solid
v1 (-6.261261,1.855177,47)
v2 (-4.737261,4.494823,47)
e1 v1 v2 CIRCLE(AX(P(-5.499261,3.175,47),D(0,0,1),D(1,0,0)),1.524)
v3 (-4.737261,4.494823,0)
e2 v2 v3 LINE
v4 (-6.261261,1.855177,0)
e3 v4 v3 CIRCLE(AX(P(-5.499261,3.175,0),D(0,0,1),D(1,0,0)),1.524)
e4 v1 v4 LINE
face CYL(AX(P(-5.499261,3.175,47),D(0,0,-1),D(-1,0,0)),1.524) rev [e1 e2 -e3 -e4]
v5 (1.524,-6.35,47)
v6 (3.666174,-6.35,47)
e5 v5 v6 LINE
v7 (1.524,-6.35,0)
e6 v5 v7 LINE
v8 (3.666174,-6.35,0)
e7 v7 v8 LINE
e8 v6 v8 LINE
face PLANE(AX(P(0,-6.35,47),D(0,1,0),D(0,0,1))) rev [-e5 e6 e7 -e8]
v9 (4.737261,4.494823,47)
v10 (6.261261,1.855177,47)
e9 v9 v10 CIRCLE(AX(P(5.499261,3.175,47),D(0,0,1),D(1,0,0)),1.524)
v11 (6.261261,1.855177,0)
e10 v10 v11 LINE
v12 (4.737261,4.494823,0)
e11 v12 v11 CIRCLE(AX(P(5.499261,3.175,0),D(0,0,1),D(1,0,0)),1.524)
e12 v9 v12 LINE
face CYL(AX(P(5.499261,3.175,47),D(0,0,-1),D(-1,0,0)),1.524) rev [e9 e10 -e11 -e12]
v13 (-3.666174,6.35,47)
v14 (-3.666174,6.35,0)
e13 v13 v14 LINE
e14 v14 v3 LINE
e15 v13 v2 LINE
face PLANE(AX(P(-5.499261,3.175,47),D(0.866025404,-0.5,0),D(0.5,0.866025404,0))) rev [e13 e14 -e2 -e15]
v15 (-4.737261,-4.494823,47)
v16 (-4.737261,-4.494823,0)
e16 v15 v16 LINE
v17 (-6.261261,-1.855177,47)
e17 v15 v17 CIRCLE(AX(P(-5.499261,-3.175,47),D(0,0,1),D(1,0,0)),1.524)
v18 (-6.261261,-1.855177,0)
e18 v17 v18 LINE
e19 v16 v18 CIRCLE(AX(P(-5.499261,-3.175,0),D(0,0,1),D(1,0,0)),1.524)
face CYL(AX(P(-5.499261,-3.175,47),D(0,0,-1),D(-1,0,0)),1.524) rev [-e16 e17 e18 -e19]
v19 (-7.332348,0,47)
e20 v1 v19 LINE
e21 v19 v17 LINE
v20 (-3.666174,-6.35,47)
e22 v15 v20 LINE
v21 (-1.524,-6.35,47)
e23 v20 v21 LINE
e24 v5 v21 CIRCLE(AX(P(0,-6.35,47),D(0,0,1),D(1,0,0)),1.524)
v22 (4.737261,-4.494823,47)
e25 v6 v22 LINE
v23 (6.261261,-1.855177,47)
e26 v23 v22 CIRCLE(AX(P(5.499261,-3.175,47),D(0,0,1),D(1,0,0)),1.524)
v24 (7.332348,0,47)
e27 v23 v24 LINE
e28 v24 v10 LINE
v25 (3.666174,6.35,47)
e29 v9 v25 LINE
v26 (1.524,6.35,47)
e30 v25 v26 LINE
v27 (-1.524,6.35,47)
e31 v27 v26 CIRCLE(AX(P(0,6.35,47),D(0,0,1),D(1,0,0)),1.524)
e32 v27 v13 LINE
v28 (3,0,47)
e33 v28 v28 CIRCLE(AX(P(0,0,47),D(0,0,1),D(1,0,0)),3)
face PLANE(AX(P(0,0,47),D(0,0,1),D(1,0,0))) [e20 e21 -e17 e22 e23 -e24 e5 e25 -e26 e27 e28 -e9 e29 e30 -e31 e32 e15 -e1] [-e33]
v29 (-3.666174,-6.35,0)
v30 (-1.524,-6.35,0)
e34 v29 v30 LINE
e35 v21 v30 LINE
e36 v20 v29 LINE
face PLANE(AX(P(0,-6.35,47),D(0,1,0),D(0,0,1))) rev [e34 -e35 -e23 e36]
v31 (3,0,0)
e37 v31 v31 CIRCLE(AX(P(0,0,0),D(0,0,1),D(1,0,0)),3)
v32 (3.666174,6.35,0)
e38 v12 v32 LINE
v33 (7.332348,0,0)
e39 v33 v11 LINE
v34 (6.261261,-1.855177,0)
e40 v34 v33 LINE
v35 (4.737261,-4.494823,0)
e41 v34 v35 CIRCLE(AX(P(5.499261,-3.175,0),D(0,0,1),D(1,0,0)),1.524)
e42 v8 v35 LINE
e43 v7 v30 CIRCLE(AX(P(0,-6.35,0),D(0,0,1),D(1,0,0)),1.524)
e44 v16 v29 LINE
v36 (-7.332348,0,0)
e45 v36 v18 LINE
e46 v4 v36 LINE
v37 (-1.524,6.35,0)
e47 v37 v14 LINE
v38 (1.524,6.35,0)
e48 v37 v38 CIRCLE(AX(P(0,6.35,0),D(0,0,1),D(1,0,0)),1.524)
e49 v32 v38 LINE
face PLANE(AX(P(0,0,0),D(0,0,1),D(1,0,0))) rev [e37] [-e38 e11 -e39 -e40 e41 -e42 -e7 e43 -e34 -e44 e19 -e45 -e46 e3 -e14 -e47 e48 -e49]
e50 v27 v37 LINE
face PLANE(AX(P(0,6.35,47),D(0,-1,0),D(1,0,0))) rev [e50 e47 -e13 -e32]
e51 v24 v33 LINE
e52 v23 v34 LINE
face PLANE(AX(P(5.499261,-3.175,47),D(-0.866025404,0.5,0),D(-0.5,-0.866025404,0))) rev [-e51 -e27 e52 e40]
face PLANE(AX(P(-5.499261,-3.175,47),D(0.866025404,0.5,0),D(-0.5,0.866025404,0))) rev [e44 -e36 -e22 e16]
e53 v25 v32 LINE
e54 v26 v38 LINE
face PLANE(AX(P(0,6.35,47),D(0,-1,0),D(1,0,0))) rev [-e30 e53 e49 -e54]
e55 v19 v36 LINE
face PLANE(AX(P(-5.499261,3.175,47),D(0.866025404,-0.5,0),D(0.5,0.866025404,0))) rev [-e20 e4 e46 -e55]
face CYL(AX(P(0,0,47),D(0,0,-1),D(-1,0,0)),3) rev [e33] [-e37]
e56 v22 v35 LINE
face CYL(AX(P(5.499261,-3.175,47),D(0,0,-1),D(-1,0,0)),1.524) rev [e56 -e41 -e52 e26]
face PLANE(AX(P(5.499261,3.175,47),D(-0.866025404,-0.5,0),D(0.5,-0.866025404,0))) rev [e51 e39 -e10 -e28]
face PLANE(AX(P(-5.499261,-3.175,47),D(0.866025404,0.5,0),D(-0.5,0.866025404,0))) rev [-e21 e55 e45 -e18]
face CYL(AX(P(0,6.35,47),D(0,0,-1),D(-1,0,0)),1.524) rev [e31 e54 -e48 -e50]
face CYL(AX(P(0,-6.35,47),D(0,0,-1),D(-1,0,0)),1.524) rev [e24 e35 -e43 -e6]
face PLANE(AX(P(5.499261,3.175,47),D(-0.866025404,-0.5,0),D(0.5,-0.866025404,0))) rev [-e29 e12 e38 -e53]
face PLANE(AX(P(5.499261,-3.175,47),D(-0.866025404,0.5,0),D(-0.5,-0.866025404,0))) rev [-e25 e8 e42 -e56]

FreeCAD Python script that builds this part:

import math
import FreeCAD as App
import Part
import Sketcher
Q = App.Units.Quantity

doc = App.newDocument("Part")
body = doc.addObject("PartDesign::Body", "Body")

sketch1 = body.newObject("Sketcher::SketchObject", "Sketch")
sketch1.AttachmentSupport = (doc.getObject("XY_Plane"), [""])
sketch1.MapMode = "FlatFace"
sketch1.addGeometry(Part.LineSegment(App.Vector(4.7, 4.5, 0), App.Vector(3.7, 6.3, 0)), False)
sketch1.addGeometry(Part.LineSegment(App.Vector(3.7, 6.3, 0), App.Vector(1.5, 6.3, 0)), False)
sketch1.addGeometry(Part.ArcOfCircle(Part.Circle(App.Vector(0, 6.3, 0), App.Vector(0, 0, 1), 1.5), math.radians(180), math.radians(360)), False)
sketch1.addGeometry(Part.LineSegment(App.Vector(-1.5, 6.3, 0), App.Vector(-3.7, 6.3, 0)), False)
sketch1.addGeometry(Part.LineSegment(App.Vector(-3.7, 6.3, 0), App.Vector(-4.7, 4.5, 0)), False)
sketch1.addGeometry(Part.ArcOfCircle(Part.Circle(App.Vector(-5.5, 3.2, 0), App.Vector(0, 0, 1), 1.5), math.radians(0), math.radians(60)), False)
sketch1.addGeometry(Part.ArcOfCircle(Part.Circle(App.Vector(-5.5, 3.2, 0), App.Vector(0, 0, 1), 1.5), math.radians(-120), math.radians(0)), False)
sketch1.addGeometry(Part.LineSegment(App.Vector(-6.3, 1.9, 0), App.Vector(-7.3, 0, 0)), False)
sketch1.addGeometry(Part.LineSegment(App.Vector(-7.3, 0, 0), App.Vector(-6.3, -1.9, 0)), False)
sketch1.addGeometry(Part.ArcOfCircle(Part.Circle(App.Vector(-5.5, -3.2, 0), App.Vector(0, 0, 1), 1.5), math.radians(0), math.radians(120)), False)
sketch1.addGeometry(Part.ArcOfCircle(Part.Circle(App.Vector(-5.5, -3.2, 0), App.Vector(0, 0, 1), 1.5), math.radians(-60), math.radians(0)), False)
sketch1.addGeometry(Part.LineSegment(App.Vector(-4.7, -4.5, 0), App.Vector(-3.7, -6.3, 0)), False)
sketch1.addGeometry(Part.LineSegment(App.Vector(-3.7, -6.3, 0), App.Vector(-1.5, -6.3, 0)), False)
sketch1.addGeometry(Part.ArcOfCircle(Part.Circle(App.Vector(0, -6.3, 0), App.Vector(0, 0, 1), 1.5), math.radians(0), math.radians(180)), False)
sketch1.addGeometry(Part.LineSegment(App.Vector(1.5, -6.3, 0), App.Vector(3.7, -6.3, 0)), False)
sketch1.addGeometry(Part.LineSegment(App.Vector(3.7, -6.3, 0), App.Vector(4.7, -4.5, 0)), False)
sketch1.addGeometry(Part.ArcOfCircle(Part.Circle(App.Vector(5.5, -3.2, 0), App.Vector(0, 0, 1), 1.5), math.radians(60), math.radians(240)), False)
sketch1.addGeometry(Part.LineSegment(App.Vector(6.3, -1.9, 0), App.Vector(7.3, 0, 0)), False)
sketch1.addGeometry(Part.LineSegment(App.Vector(7.3, 0, 0), App.Vector(6.3, 1.9, 0)), False)
sketch1.addGeometry(Part.ArcOfCircle(Part.Circle(App.Vector(5.5, 3.2, 0), App.Vector(0, 0, 1), 1.5), math.radians(120), math.radians(300)), False)
sketch1.addGeometry(Part.Circle(App.Vector(0, 0, 0), App.Vector(0, 0, 1), 3), False)
sketch1.addConstraint(Sketcher.Constraint("Coincident", 0, 2, 1, 1))
sketch1.addConstraint(Sketcher.Constraint("Coincident", 1, 2, 2, 2))
sketch1.addConstraint(Sketcher.Constraint("Coincident", 2, 1, 3, 1))
sketch1.addConstraint(Sketcher.Constraint("Coincident", 3, 2, 4, 1))
sketch1.addConstraint(Sketcher.Constraint("Coincident", 4, 2, 5, 2))
sketch1.addConstraint(Sketcher.Constraint("Tangent", 5, 1, 6, 2))
sketch1.addConstraint(Sketcher.Constraint("Coincident", 6, 1, 7, 1))
sketch1.addConstraint(Sketcher.Constraint("Coincident", 7, 2, 8, 1))
sketch1.addConstraint(Sketcher.Constraint("Coincident", 8, 2, 9, 2))
sketch1.addConstraint(Sketcher.Constraint("Tangent", 9, 1, 10, 2))
sketch1.addConstraint(Sketcher.Constraint("Coincident", 10, 1, 11, 1))
sketch1.addConstraint(Sketcher.Constraint("Coincident", 11, 2, 12, 1))
sketch1.addConstraint(Sketcher.Constraint("Coincident", 12, 2, 13, 2))
sketch1.addConstraint(Sketcher.Constraint("Coincident", 13, 1, 14, 1))
sketch1.addConstraint(Sketcher.Constraint("Coincident", 14, 2, 15, 1))
sketch1.addConstraint(Sketcher.Constraint("Coincident", 15, 2, 16, 2))
sketch1.addConstraint(Sketcher.Constraint("Coincident", 16, 1, 17, 1))
sketch1.addConstraint(Sketcher.Constraint("Coincident", 17, 2, 18, 1))
sketch1.addConstraint(Sketcher.Constraint("Coincident", 18, 2, 19, 2))
sketch1.addConstraint(Sketcher.Constraint("Coincident", 19, 1, 0, 1))
sketch1.addConstraint(Sketcher.Constraint("Horizontal", 1))
sketch1.addConstraint(Sketcher.Constraint("Horizontal", 3))
sketch1.addConstraint(Sketcher.Constraint("Horizontal", 12))
sketch1.addConstraint(Sketcher.Constraint("Horizontal", 14))
sketch1.addConstraint(Sketcher.Constraint("Coincident", 20, 3, -1, 1))
sketch1.addConstraint(Sketcher.Constraint("Equal", 2, 5))
sketch1.addConstraint(Sketcher.Constraint("Equal", 5, 6))
sketch1.addConstraint(Sketcher.Constraint("Equal", 6, 9))
sketch1.addConstraint(Sketcher.Constraint("Equal", 9, 10))
sketch1.addConstraint(Sketcher.Constraint("Equal", 10, 13))
sketch1.addConstraint(Sketcher.Constraint("Equal", 13, 16))
sketch1.addConstraint(Sketcher.Constraint("Equal", 16, 19))
sketch1.addConstraint(Sketcher.Constraint("Symmetric", 2, 3, 13, 3, -1, 1))
sketch1.addConstraint(Sketcher.Constraint("Symmetric", 5, 3, 16, 3, -1, 1))
sketch1.addConstraint(Sketcher.Constraint("Symmetric", 9, 3, 19, 3, -1, 1))
sketch1.addConstraint(Sketcher.Constraint("Symmetric", 0, 2, 11, 2, -1, 1))
sketch1.addConstraint(Sketcher.Constraint("Symmetric", 3, 2, 14, 2, -1, 1))
sketch1.addConstraint(Sketcher.Constraint("Symmetric", 7, 2, 17, 2, -1, 1))
sketch1.addConstraint(Sketcher.Constraint("Symmetric", 9, 3, 16, 3, -2))
sketch1.addConstraint(Sketcher.Constraint("Symmetric", 1, 2, 2, 1, -2))
sketch1.addConstraint(Sketcher.Constraint("PointOnObject", 7, 2, -1))
sketch1.addConstraint(Sketcher.Constraint("Parallel", 4, 7))
sketch1.addConstraint(Sketcher.Constraint("Parallel", 0, 8))
sketch1.addConstraint(Sketcher.Constraint("Parallel", 8, 11))
sketch1.addConstraint(Sketcher.Constraint("Parallel", 7, 15))
sketch1.addConstraint(Sketcher.Constraint("Parallel", 15, 17))
sketch1.addConstraint(Sketcher.Constraint("Parallel", 11, 18))
sketch1.addConstraint(Sketcher.Constraint("Horizontal", 2, 3, 0, 2))
sketch1.addConstraint(Sketcher.Constraint("Horizontal", 19, 3, 5, 1))
sketch1.addConstraint(Sketcher.Constraint("Horizontal", 16, 3, 9, 1))
sketch1.addConstraint(Sketcher.Constraint("Horizontal", 10, 1, 15, 2))
sketch1.addConstraint(Sketcher.Constraint("Horizontal", 8, 2, 16, 1))
sketch1.addConstraint(Sketcher.Constraint("Equal", 4, 7))
sketch1.addConstraint(Sketcher.Constraint("Diameter", 20, 6.0))
sketch1.addConstraint(Sketcher.Constraint("Angle", 0, Q("120 deg")))
sketch1.addConstraint(Sketcher.Constraint("Radius", 2, 1.524))
sketch1.addConstraint(Sketcher.Constraint("DistanceY", 13, 3, 2, 3, 12.7))
sketch1.addConstraint(Sketcher.Constraint("DistanceY", 9, 3, 5, 3, 6.35))
sketch1.addConstraint(Sketcher.Constraint("DistanceX", 6, 3, 4, 2, 0.762))
sketch1.addConstraint(Sketcher.Constraint("DistanceX", 1, 2, 1, 1, 2.142174))
pad1 = body.newObject("PartDesign::Pad", "Pad")
pad1.Profile = sketch1
pad1.Length = 47

doc.recompute()
